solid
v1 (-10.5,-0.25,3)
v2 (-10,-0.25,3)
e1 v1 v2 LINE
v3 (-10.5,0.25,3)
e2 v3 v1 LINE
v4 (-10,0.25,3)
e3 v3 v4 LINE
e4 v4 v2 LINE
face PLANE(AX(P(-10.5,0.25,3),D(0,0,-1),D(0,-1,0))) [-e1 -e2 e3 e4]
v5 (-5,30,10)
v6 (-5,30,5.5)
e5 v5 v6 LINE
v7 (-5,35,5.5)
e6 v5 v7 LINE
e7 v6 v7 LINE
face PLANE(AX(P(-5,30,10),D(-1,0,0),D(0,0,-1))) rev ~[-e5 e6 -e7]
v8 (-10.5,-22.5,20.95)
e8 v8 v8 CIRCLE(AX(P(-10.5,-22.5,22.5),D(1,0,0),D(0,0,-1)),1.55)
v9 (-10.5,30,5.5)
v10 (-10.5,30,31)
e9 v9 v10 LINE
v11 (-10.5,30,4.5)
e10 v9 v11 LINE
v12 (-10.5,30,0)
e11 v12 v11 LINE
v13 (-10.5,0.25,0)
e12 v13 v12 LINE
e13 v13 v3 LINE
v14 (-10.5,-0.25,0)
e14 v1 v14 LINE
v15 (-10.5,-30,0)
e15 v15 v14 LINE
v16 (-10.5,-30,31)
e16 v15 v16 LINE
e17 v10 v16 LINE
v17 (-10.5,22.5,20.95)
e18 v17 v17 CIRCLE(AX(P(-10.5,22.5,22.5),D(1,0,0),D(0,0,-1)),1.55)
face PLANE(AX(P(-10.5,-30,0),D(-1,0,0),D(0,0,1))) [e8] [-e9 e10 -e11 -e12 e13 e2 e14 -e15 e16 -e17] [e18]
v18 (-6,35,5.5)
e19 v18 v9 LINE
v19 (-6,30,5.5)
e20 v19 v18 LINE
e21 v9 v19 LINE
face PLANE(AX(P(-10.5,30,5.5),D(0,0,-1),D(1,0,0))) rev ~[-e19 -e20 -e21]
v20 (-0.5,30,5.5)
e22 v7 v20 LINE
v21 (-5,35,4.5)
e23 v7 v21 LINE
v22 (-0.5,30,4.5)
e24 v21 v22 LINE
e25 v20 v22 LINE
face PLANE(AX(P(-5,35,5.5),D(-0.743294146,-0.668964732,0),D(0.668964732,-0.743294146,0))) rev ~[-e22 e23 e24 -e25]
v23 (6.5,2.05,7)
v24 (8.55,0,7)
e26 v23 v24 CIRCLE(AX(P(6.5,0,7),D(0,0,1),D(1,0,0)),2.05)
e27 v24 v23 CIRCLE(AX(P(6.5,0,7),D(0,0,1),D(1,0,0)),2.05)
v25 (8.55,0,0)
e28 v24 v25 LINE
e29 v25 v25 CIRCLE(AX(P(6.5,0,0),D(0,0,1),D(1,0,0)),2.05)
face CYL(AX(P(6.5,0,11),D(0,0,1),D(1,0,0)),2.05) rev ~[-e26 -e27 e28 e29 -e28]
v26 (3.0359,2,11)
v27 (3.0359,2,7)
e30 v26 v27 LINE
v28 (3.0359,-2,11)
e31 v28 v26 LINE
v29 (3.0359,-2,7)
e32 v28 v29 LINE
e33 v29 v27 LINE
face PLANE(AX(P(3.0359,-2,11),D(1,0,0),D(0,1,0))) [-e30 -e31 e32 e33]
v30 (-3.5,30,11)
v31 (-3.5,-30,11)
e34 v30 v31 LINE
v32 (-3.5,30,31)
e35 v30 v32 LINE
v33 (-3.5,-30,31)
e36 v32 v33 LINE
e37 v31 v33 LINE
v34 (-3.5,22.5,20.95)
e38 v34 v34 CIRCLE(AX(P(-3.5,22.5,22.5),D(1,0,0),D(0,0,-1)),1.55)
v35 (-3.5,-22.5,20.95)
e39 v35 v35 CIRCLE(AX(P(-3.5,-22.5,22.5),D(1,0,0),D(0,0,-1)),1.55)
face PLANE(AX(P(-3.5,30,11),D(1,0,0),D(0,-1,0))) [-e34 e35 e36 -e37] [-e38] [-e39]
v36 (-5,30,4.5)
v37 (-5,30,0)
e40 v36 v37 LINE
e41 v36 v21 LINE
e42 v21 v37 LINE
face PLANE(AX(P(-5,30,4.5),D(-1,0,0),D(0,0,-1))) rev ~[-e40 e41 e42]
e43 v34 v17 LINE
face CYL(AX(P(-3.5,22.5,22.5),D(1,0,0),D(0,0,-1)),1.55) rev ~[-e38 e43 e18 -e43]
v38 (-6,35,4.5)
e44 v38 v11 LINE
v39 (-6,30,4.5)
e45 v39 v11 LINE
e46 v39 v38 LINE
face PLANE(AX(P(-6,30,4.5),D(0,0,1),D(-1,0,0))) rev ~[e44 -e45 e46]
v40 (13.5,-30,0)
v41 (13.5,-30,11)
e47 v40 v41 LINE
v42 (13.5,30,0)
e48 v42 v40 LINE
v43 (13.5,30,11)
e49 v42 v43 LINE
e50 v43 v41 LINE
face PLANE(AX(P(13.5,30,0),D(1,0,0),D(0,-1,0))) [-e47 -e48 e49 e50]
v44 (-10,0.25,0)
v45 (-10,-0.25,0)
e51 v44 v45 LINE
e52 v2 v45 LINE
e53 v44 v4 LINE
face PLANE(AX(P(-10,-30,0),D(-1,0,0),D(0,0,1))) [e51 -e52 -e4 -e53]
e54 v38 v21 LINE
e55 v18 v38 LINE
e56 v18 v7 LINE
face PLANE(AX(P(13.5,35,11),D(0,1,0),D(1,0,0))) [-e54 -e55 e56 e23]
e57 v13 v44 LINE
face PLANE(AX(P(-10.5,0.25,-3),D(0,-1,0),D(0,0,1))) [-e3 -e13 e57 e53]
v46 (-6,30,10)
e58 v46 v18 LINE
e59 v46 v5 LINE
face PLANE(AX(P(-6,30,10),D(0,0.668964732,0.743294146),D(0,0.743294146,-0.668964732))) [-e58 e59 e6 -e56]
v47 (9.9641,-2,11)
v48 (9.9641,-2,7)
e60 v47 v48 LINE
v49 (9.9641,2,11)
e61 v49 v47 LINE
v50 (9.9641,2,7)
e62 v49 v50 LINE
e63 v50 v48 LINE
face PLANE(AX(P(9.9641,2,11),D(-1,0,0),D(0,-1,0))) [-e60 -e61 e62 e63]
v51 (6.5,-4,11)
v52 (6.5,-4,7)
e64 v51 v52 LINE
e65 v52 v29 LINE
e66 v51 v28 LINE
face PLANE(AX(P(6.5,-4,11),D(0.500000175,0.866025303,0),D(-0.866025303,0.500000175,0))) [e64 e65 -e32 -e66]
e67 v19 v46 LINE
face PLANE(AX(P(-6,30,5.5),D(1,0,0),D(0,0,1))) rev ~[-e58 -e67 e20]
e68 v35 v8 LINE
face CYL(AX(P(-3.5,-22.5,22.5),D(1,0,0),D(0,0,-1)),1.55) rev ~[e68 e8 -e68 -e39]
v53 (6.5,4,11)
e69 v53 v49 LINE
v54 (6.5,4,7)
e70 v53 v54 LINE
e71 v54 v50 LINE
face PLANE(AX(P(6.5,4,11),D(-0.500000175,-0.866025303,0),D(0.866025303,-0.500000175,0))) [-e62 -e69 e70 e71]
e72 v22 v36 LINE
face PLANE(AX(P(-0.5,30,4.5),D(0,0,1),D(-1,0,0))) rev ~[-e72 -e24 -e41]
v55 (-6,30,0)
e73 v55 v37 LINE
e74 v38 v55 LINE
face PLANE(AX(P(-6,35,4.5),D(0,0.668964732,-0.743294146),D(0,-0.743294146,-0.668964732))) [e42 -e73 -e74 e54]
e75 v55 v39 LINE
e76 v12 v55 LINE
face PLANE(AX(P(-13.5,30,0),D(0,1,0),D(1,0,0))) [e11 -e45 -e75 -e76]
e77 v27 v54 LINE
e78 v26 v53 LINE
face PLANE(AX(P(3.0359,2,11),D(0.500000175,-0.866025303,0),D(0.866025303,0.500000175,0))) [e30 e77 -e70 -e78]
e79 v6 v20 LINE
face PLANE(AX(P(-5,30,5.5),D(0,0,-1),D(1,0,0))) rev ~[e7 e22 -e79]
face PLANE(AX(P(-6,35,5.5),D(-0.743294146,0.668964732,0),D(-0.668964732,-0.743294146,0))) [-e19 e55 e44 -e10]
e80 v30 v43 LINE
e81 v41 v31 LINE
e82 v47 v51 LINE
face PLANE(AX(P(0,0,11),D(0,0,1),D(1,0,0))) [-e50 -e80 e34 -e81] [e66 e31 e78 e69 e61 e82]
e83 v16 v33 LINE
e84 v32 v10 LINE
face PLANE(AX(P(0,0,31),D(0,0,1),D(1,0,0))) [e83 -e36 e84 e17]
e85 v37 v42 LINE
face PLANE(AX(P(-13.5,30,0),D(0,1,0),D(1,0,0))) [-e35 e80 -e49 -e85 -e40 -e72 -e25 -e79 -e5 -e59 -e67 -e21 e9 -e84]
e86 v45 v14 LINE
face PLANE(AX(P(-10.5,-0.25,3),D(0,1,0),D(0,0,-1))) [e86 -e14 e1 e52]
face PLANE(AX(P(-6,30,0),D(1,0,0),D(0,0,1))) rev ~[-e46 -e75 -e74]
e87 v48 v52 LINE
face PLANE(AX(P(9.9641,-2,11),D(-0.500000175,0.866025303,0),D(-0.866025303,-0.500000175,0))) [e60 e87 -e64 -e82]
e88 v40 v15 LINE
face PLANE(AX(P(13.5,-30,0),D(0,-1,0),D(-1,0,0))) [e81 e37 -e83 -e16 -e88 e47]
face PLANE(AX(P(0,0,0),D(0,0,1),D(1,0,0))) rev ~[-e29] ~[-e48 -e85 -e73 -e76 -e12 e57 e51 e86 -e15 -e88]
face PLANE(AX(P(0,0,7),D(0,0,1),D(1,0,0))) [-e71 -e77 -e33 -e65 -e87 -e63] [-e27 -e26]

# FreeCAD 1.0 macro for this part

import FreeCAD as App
import Part
import Sketcher
from FreeCAD import Vector
Q = App.Units.Quantity


def add_polygon(sketch, points):
    """Adds a closed chain of lines whose ends are joined by coincident constraints."""
    first, n = sketch.GeometryCount, len(points)
    for a, b in zip(points, points[1:] + points[:1]):
        sketch.addGeometry(Part.LineSegment(App.Vector(*a, 0), App.Vector(*b, 0)), False)
    for i in range(n):
        sketch.addConstraint(Sketcher.Constraint("Coincident", first + i, 2, first + (i + 1) % n, 1))

doc = App.newDocument("Part")
params = doc.addObject("Spreadsheet::Sheet", "Params")
for row, (alias, value) in enumerate([
    ("sketch1_width", "27 mm"),
    ("sketch1_height", "60 mm"),
    ("pad1_length", "11 mm"),
    ("sketch2_width", "10 mm"),
    ("sketch2_height", "60 mm"),
    ("pad2_length", "20 mm"),
    ("sketch3_diameter", "3.1 mm"),
    ("sketch4_diameter", "3.1 mm"),
    ("sketch4_width", "60 mm"),
    ("sketch4_height", "31 mm"),
    ("pocket2_length", "3 mm"),
    ("sketch5_height", "6 mm"),
    ("sketch5_width", "0.5 mm"),
    ("pocket3_length", "0.5 mm"),
    ("sketch6_diameter", "4.1 mm"),
    ("sketch7_height", "4 mm"),
    ("sketch7_length", "4 mm"),
    ("sketch7_diameter", "4.1 mm"),
    ("pocket5_length", "4 mm"),
    ("sketch8_width", "1 mm"),
    ("pad3_length", "5 mm"),
    ("sketch9_width", "5 mm"),
    ("sketch9_height", "4.5 mm"),
    ("pocket6_length", "1 mm"),
    ("sketch10_height", "5 mm"),
    ("sketch10_width", "4.5 mm"),
    ("pocket7_length", "1 mm"),
], start=1):
    params.set(f"A{row}", alias)
    params.set(f"B{row}", "=" + value)
    params.setAlias(f"B{row}", alias)

body = doc.addObject("PartDesign::Body", "Body")

# Sketch on XY plane
sketch1 = doc.addObject("Sketcher::SketchObject", "Sketch")
body.addObject(sketch1)
sketch1.AttachmentSupport = (doc.XY_Plane, [""])
sketch1.MapMode = "FlatFace"
add_polygon(sketch1, [(13.5, 30), (-13.5, 30), (-13.5, -30), (13.5, -30)])  # lines 0-3
sketch1.addConstraint([
    Sketcher.Constraint("Horizontal", 0),
    Sketcher.Constraint("Vertical", 1),
    Sketcher.Constraint("Horizontal", 2),
    Sketcher.Constraint("Vertical", 3),
    Sketcher.Constraint("Symmetric", 0, 2, 2, 2, -1, 1),
    Sketcher.Constraint("DistanceX", 0, 2, 0, 1, Q("27 mm")),
    Sketcher.Constraint("DistanceY", 1, 2, 1, 1, Q("60 mm")),
])
sketch1.setExpression("Constraints[9]", "Params.sketch1_width")
sketch1.setExpression("Constraints[10]", "Params.sketch1_height")
pad1 = doc.addObject("PartDesign::Pad", "Pad")
body.addObject(pad1)
pad1.Profile = sketch1
pad1.setExpression("Length", "Params.pad1_length")

# Sketch on XY plane
sketch2 = doc.addObject("Sketcher::SketchObject", "Sketch001")
body.addObject(sketch2)
sketch2.AttachmentSupport = (doc.XY_Plane, [""])
sketch2.MapMode = "FlatFace"
sketch2.AttachmentOffset = App.Placement(Vector(0, 0, 11), App.Rotation())
add_polygon(sketch2, [(-3.5, -30), (-3.5, 30), (-13.5, 30), (-13.5, -30)])  # lines 0-3
sketch2.addConstraint([
    Sketcher.Constraint("Vertical", 0),
    Sketcher.Constraint("Horizontal", 1),
    Sketcher.Constraint("Vertical", 2),
    Sketcher.Constraint("Horizontal", 3),
    Sketcher.Constraint("DistanceX", 1, 2, 1, 1, Q("10 mm")),
    Sketcher.Constraint("DistanceY", 0, 1, 0, 2, Q("60 mm")),
    Sketcher.Constraint("DistanceY", -1, 1, 0, 2, Q("30 mm")),
    Sketcher.Constraint("DistanceX", 0, 2, -1, 1, Q("3.5 mm")),
])
sketch2.setExpression("Constraints[8]", "Params.sketch2_width")
sketch2.setExpression("Constraints[9]", "Params.sketch2_height")
pad2 = doc.addObject("PartDesign::Pad", "Pad001")
body.addObject(pad2)
pad2.Profile = sketch2
pad2.setExpression("Length", "Params.pad2_length")

# Sketch on YZ plane
sketch3 = doc.addObject("Sketcher::SketchObject", "Sketch002")
body.addObject(sketch3)
sketch3.AttachmentSupport = (doc.YZ_Plane, [""])
sketch3.MapMode = "FlatFace"
sketch3.AttachmentOffset = App.Placement(Vector(0, 0, -3.5), App.Rotation())
sketch3.addGeometry([
    Part.Circle(Vector(-22.5, 22.5, 0), Vector(0, 0, 1), 1.55),
    Part.Circle(Vector(22.5, 22.5, 0), Vector(0, 0, 1), 1.55),
], False)
sketch3.addConstraint([
    Sketcher.Constraint("Equal", 0, 1),
    Sketcher.Constraint("Symmetric", 0, 3, 1, 3, -2),
    Sketcher.Constraint("Diameter", 0, Q("3.1 mm")),
    Sketcher.Constraint("DistanceX", 0, 3, -1, 1, Q("22.5 mm")),
    Sketcher.Constraint("DistanceY", -1, 1, 0, 3, Q("22.5 mm")),
])
sketch3.setExpression("Constraints[2]", "Params.sketch3_diameter")
pocket1 = doc.addObject("PartDesign::Pocket", "Pocket")
body.addObject(pocket1)
pocket1.Profile = sketch3
pocket1.Type = "ThroughAll"

# Sketch on YZ plane
sketch4 = doc.addObject("Sketcher::SketchObject", "Sketch003")
body.addObject(sketch4)
sketch4.AttachmentSupport = (doc.YZ_Plane, [""])
sketch4.MapMode = "FlatFace"
sketch4.AttachmentOffset = App.Placement(Vector(0, 0, -13.5), App.Rotation())
add_polygon(sketch4, [(30, 0), (-30, 0), (-30, 31), (30, 31)])  # lines 0-3
sketch4.addGeometry(Part.Circle(Vector(-22.5, 22.5, 0), Vector(0, 0, 1), 1.55), False)  # 4
sketch4.addGeometry(Part.Circle(Vector(22.5, 22.5, 0), Vector(0, 0, 1), 1.55), False)  # 5
sketch4.addConstraint([
    Sketcher.Constraint("Horizontal", 0),
    Sketcher.Constraint("Vertical", 1),
    Sketcher.Constraint("Horizontal", 2),
    Sketcher.Constraint("Vertical", 3),
    Sketcher.Constraint("Equal", 4, 5),
    Sketcher.Constraint("Symmetric", 0, 2, 3, 2, -1, 1),
    Sketcher.Constraint("Symmetric", 4, 3, 5, 3, -2),
    Sketcher.Constraint("Diameter", 4, Q("3.1 mm")),
    Sketcher.Constraint("DistanceX", 0, 2, 0, 1, Q("60 mm")),
    Sketcher.Constraint("DistanceY", 1, 1, 1, 2, Q("31 mm")),
    Sketcher.Constraint("DistanceX", 4, 3, 5, 3, Q("45 mm")),
    Sketcher.Constraint("DistanceY", -1, 1, 4, 3, Q("22.5 mm")),
])
sketch4.setExpression("Constraints[11]", "Params.sketch4_diameter")
sketch4.setExpression("Constraints[12]", "Params.sketch4_width")
sketch4.setExpression("Constraints[13]", "Params.sketch4_height")
pocket2 = doc.addObject("PartDesign::Pocket", "Pocket001")
body.addObject(pocket2)
pocket2.Profile = sketch4
pocket2.setExpression("Length", "Params.pocket2_length")
pocket2.Reversed = True

# Sketch on YZ plane
sketch5 = doc.addObject("Sketcher::SketchObject", "Sketch004")
body.addObject(sketch5)
sketch5.AttachmentSupport = (doc.YZ_Plane, [""])
sketch5.MapMode = "FlatFace"
sketch5.AttachmentOffset = App.Placement(Vector(0, 0, -10.5), App.Rotation())
add_polygon(sketch5, [(0.25, 3), (0.25, -3), (-0.25, -3), (-0.25, 3)])  # lines 0-3
sketch5.addConstraint([
    Sketcher.Constraint("Vertical", 0),
    Sketcher.Constraint("Horizontal", 1),
    Sketcher.Constraint("Vertical", 2),
    Sketcher.Constraint("Horizontal", 3),
    Sketcher.Constraint("Symmetric", 0, 2, 2, 2, -1, 1),
    Sketcher.Constraint("DistanceY", 0, 2, 0, 1, Q("6 mm")),
    Sketcher.Constraint("DistanceX", 1, 2, 1, 1, Q("0.5 mm")),
])
sketch5.setExpression("Constraints[9]", "Params.sketch5_height")
sketch5.setExpression("Constraints[10]", "Params.sketch5_width")
pocket3 = doc.addObject("PartDesign::Pocket", "Pocket002")
body.addObject(pocket3)
pocket3.Profile = sketch5
pocket3.setExpression("Length", "Params.pocket3_length")
pocket3.Reversed = True

# Sketch on XY plane
sketch6 = doc.addObject("Sketcher::SketchObject", "Sketch005")
body.addObject(sketch6)
sketch6.AttachmentSupport = (doc.XY_Plane, [""])
sketch6.MapMode = "FlatFace"
sketch6.AttachmentOffset = App.Placement(Vector(0, 0, 11), App.Rotation())
sketch6.addGeometry(Part.Circle(Vector(6.5, 0, 0), Vector(0, 0, 1), 2.05), False)
sketch6.addConstraint([
    Sketcher.Constraint("PointOnObject", 0, 3, -1),
    Sketcher.Constraint("Diameter", 0, Q("4.1 mm")),
    Sketcher.Constraint("DistanceX", -1, 1, 0, 3, Q("6.5 mm")),
])
sketch6.setExpression("Constraints[1]", "Params.sketch6_diameter")
pocket4 = doc.addObject("PartDesign::Pocket", "Pocket003")
body.addObject(pocket4)
pocket4.Profile = sketch6
pocket4.Type = "ThroughAll"

# Sketch on XY plane
sketch7 = doc.addObject("Sketcher::SketchObject", "Sketch006")
body.addObject(sketch7)
sketch7.AttachmentSupport = (doc.XY_Plane, [""])
sketch7.MapMode = "FlatFace"
sketch7.AttachmentOffset = App.Placement(Vector(0, 0, 11), App.Rotation())
add_polygon(sketch7, [(9.9641, 2), (6.5, 4), (3.0359, 2), (3.0359, -2), (6.5, -4), (9.9641, -2)])  # lines 0-5
sketch7.addGeometry(Part.Circle(Vector(6.5, 0, 0), Vector(0, 0, 1), 2.05), False)  # 6
sketch7.addConstraint([
    Sketcher.Constraint("Vertical", 2),
    Sketcher.Constraint("Vertical", 5),
    Sketcher.Constraint("Symmetric", 0, 2, 3, 2, -1),
    Sketcher.Constraint("PointOnObject", 6, 3, -1),
    Sketcher.Constraint("Parallel", 0, 3),
    Sketcher.Constraint("Parallel", 1, 4),
    Sketcher.Constraint("Horizontal", 2, 2, 4, 2),
    Sketcher.Constraint("Horizontal", 1, 2, 5, 2),
    Sketcher.Constraint("Vertical", 6, 3, 0, 2),
    Sketcher.Constraint("DistanceY", 2, 2, 2, 1, Q("4 mm")),
    Sketcher.Constraint("Distance", 0, Q("4 mm")),
    Sketcher.Constraint("DistanceY", -1, 1, 0, 2, Q("4 mm")),
    Sketcher.Constraint("Diameter", 6, Q("4.1 mm")),
    Sketcher.Constraint("DistanceX", -1, 1, 6, 3, Q("6.5 mm")),
])
sketch7.setExpression("Constraints[15]", "Params.sketch7_height")
sketch7.setExpression("Constraints[16]", "Params.sketch7_length")
sketch7.setExpression("Constraints[18]", "Params.sketch7_diameter")
pocket5 = doc.addObject("PartDesign::Pocket", "Pocket004")
body.addObject(pocket5)
pocket5.Profile = sketch7
pocket5.setExpression("Length", "Params.pocket5_length")

# Sketch on XZ plane
sketch8 = doc.addObject("Sketcher::SketchObject", "Sketch007")
body.addObject(sketch8)
sketch8.AttachmentSupport = (doc.XZ_Plane, [""])
sketch8.MapMode = "FlatFace"
sketch8.AttachmentOffset = App.Placement(Vector(0, 0, -30), App.Rotation())
add_polygon(sketch8, [(-5, 4.5), (-5, 0), (-6, 0), (-6, 4.5), (-10.5, 4.5), (-10.5, 5.5), (-6, 5.5), (-6, 10), (-5, 10), (-5, 5.5), (-0.5, 5.5), (-0.5, 4.5)])  # lines 0-11
sketch8.addConstraint([
    Sketcher.Constraint("Vertical", 0),
    Sketcher.Constraint("Horizontal", 1),
    Sketcher.Constraint("Vertical", 2),
    Sketcher.Constraint("Horizontal", 3),
    Sketcher.Constraint("Vertical", 4),
    Sketcher.Constraint("Horizontal", 5),
    Sketcher.Constraint("Vertical", 6),
    Sketcher.Constraint("Horizontal", 7),
    Sketcher.Constraint("Vertical", 8),
    Sketcher.Constraint("Horizontal", 9),
    Sketcher.Constraint("Vertical", 10),
    Sketcher.Constraint("Horizontal", 11),
    Sketcher.Constraint("PointOnObject", 0, 2, -1),
    Sketcher.Constraint("Horizontal", 5, 2, 8, 2),
    Sketcher.Constraint("Horizontal", 3, 2, 10, 2),
    Sketcher.Constraint("Vertical", 2, 2, 5, 2),
    Sketcher.Constraint("Vertical", 0, 2, 7, 2),
    Sketcher.Constraint("Equal", 5, 9),
    Sketcher.Constraint("Equal", 11, 0),
    Sketcher.Constraint("Equal", 7, 4),
    Sketcher.Constraint("Equal", 2, 6),
    Sketcher.Constraint("DistanceY", -1, 1, 6, 2, Q("10 mm")),
    Sketcher.Constraint("DistanceX", 1, 2, 1, 1, Q("1 mm")),
    Sketcher.Constraint("DistanceX", 0, 2, -1, 1, Q("5 mm")),
])
sketch8.setExpression("Constraints[34]", "Params.sketch8_width")
pad3 = doc.addObject("PartDesign::Pad", "Pad002")
body.addObject(pad3)
pad3.Profile = sketch8
pad3.setExpression("Length", "Params.pad3_length")
pad3.Reversed = True

# Sketch on YZ plane
sketch9 = doc.addObject("Sketcher::SketchObject", "Sketch008")
body.addObject(sketch9)
sketch9.AttachmentSupport = (doc.YZ_Plane, [""])
sketch9.MapMode = "FlatFace"
sketch9.AttachmentOffset = App.Placement(Vector(0, 0, -6), App.Rotation())
add_polygon(sketch9, [(35, 10), (35, 5.5), (30, 10)])  # lines 0-2
add_polygon(sketch9, [(30, 0), (35, 4.5), (35, 0)])  # lines 3-5
sketch9.addConstraint([
    Sketcher.Constraint("Vertical", 0),
    Sketcher.Constraint("Horizontal", 2),
    Sketcher.Constraint("Vertical", 4),
    Sketcher.Constraint("Horizontal", 5),
    Sketcher.Constraint("PointOnObject", 4, 2, -1),
    Sketcher.Constraint("Vertical", 2, 2, 3, 2),
    Sketcher.Constraint("Vertical", 1, 2, 5, 2),
    Sketcher.Constraint("Equal", 0, 4),
    Sketcher.Constraint("DistanceX", 2, 1, 2, 2, Q("5 mm")),
    Sketcher.Constraint("DistanceY", 0, 2, 0, 1, Q("4.5 mm")),
    Sketcher.Constraint("DistanceX", -1, 1, 0, 2, Q("35 mm")),
    Sketcher.Constraint("DistanceY", -1, 1, 1, 2, Q("10 mm")),
])
sketch9.setExpression("Constraints[14]", "Params.sketch9_width")
sketch9.setExpression("Constraints[15]", "Params.sketch9_height")
pocket6 = doc.addObject("PartDesign::Pocket", "Pocket005")
body.addObject(pocket6)
pocket6.Profile = sketch9
pocket6.setExpression("Length", "Params.pocket6_length")
pocket6.Reversed = True

# Sketch on XY plane
sketch10 = doc.addObject("Sketcher::SketchObject", "Sketch009")
body.addObject(sketch10)
sketch10.AttachmentSupport = (doc.XY_Plane, [""])
sketch10.MapMode = "FlatFace"
sketch10.AttachmentOffset = App.Placement(Vector(0, 0, 5.5), App.Rotation())
add_polygon(sketch10, [(-10.5, 30), (-6, 35), (-10.5, 35)])  # lines 0-2
add_polygon(sketch10, [(-0.5, 35), (-5, 35), (-0.5, 30)])  # lines 3-5
sketch10.addConstraint([
    Sketcher.Constraint("Horizontal", 1),
    Sketcher.Constraint("Vertical", 2),
    Sketcher.Constraint("Horizontal", 3),
    Sketcher.Constraint("Vertical", 5),
    Sketcher.Constraint("Horizontal", 1, 2, 3, 2),
    Sketcher.Constraint("Horizontal", 2, 2, 4, 2),
    Sketcher.Constraint("Equal", 1, 3),
    Sketcher.Constraint("DistanceY", 2, 2, 2, 1, Q("5 mm")),
    Sketcher.Constraint("DistanceX", 1, 2, 1, 1, Q("4.5 mm")),
    Sketcher.Constraint("DistanceX", 0, 2, -1, 1, Q("6 mm")),
    Sketcher.Constraint("DistanceY", -1, 1, 0, 2, Q("35 mm")),
    Sketcher.Constraint("DistanceX", 3, 2, -1, 1, Q("5 mm")),
])
sketch10.setExpression("Constraints[13]", "Params.sketch10_height")
sketch10.setExpression("Constraints[14]", "Params.sketch10_width")
pocket7 = doc.addObject("PartDesign::Pocket", "Pocket006")
body.addObject(pocket7)
pocket7.Profile = sketch10
pocket7.setExpression("Length", "Params.pocket7_length")

doc.recompute()
